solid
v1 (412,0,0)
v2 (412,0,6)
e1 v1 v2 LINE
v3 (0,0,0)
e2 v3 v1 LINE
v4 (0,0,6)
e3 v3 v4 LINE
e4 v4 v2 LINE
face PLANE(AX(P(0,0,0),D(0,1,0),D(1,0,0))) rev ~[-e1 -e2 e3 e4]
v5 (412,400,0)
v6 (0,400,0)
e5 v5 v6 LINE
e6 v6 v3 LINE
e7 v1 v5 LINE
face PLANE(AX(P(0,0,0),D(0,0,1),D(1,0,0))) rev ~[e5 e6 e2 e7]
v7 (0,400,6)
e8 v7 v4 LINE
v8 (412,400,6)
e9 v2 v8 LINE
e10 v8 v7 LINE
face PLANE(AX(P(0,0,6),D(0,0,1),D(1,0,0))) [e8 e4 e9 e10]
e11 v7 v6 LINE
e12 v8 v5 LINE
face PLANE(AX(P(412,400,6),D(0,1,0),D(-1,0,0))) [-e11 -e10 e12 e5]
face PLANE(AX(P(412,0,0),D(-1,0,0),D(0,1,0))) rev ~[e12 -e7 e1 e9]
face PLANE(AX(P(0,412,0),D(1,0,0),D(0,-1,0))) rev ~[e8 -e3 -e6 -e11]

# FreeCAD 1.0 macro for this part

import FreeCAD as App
import Part
import Sketcher

V = App.Vector

doc = App.newDocument("Part")
params = doc.addObject("Spreadsheet::Sheet", "Params")
for row, (alias, value) in enumerate([
    ("sketch1_width", "412 mm"),
    ("pad1_length", "6 mm"),
    ("sketch2_height", "12 mm"),
    ("sketch2_width", "412 mm"),
    ("pocket1_length", "10 mm"),
], start=1):
    params.set(f"A{row}", alias)
    params.set(f"B{row}", "=" + value)
    params.setAlias(f"B{row}", alias)

body = doc.addObject("PartDesign::Body", "Body")

sketch1 = body.newObject("Sketcher::SketchObject", "Sketch")
sketch1.AttachmentSupport = (doc.getObject("XY_Plane"), [""])
sketch1.MapMode = "FlatFace"
sketch1.addGeometry([
    Part.LineSegment(V(0, 412, 0), V(0, 0, 0)),
    Part.LineSegment(V(0, 0, 0), V(412, 0, 0)),
    Part.LineSegment(V(412, 0, 0), V(412, 412, 0)),
    Part.LineSegment(V(412, 412, 0), V(0, 412, 0)),
], False)
sketch1.addConstraint([
    Sketcher.Constraint("Coincident", 0, 2, 1, 1),
    Sketcher.Constraint("Coincident", 1, 2, 2, 1),
    Sketcher.Constraint("Coincident", 2, 2, 3, 1),
    Sketcher.Constraint("Coincident", 3, 2, 0, 1),
    Sketcher.Constraint("Vertical", 0),
    Sketcher.Constraint("Horizontal", 1),
    Sketcher.Constraint("Vertical", 2),
    Sketcher.Constraint("Horizontal", 3),
    Sketcher.Constraint("Coincident", 0, 2, -1, 1),
    Sketcher.Constraint("Equal", 3, 0),
    Sketcher.Constraint("DistanceX", 1, 1, 1, 2, 412.0),
])
sketch1.setExpression("Constraints[10]", "Params.sketch1_width")
pad1 = body.newObject("PartDesign::Pad", "Pad")
pad1.Profile = sketch1
pad1.setExpression("Length", "Params.pad1_length")

sketch2 = body.newObject("Sketcher::SketchObject", "Sketch001")
sketch2.AttachmentSupport = (doc.getObject("XY_Plane"), [""])
sketch2.MapMode = "FlatFace"
sketch2.AttachmentOffset = App.Placement(V(0, 0, 6), App.Rotation())
sketch2.addGeometry([
    Part.LineSegment(V(412, 400, 0), V(412, 412, 0)),
    Part.LineSegment(V(412, 412, 0), V(0, 412, 0)),
    Part.LineSegment(V(0, 412, 0), V(0, 400, 0)),
    Part.LineSegment(V(0, 400, 0), V(412, 400, 0)),
], False)
sketch2.addConstraint([
    Sketcher.Constraint("Coincident", 0, 2, 1, 1),
    Sketcher.Constraint("Coincident", 1, 2, 2, 1),
    Sketcher.Constraint("Coincident", 2, 2, 3, 1),
    Sketcher.Constraint("Coincident", 3, 2, 0, 1),
    Sketcher.Constraint("Vertical", 0),
    Sketcher.Constraint("Horizontal", 1),
    Sketcher.Constraint("Vertical", 2),
    Sketcher.Constraint("Horizontal", 3),
    Sketcher.Constraint("PointOnObject", 1, 2, -2),
    Sketcher.Constraint("DistanceY", 0, 1, 0, 2, 12.0),
    Sketcher.Constraint("DistanceX", 1, 2, 1, 1, 412.0),
    Sketcher.Constraint("DistanceY", -1, 1, 0, 2, 412.0),
])
sketch2.setExpression("Constraints[9]", "Params.sketch2_height")
sketch2.setExpression("Constraints[10]", "Params.sketch2_width")
pocket1 = body.newObject("PartDesign::Pocket", "Pocket")
pocket1.Profile = sketch2
pocket1.setExpression("Length", "Params.pocket1_length")

doc.recompute()
